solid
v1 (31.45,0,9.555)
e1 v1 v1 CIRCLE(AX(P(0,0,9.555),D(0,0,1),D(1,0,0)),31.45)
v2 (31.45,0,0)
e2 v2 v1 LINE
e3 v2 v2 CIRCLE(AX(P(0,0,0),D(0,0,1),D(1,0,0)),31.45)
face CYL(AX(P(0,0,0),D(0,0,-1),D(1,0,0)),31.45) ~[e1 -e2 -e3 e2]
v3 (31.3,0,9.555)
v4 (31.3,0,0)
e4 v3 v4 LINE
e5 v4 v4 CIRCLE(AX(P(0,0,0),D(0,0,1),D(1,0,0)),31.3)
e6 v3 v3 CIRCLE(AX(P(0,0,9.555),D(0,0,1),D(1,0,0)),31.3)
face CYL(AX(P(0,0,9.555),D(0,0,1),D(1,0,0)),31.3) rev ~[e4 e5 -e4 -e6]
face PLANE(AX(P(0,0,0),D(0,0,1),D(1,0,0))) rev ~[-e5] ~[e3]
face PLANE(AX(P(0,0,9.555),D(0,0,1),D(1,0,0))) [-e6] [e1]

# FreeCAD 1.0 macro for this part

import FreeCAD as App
import Part
import Sketcher
Q = App.Units.Quantity

doc = App.newDocument("Part")
body = doc.addObject("PartDesign::Body", "Body")

sketch1 = body.newObject("Sketcher::SketchObject", "Sketch")
sketch1.AttachmentSupport = (doc.getObject("XY_Plane"), [""])
sketch1.MapMode = "FlatFace"
sketch1.addGeometry(Part.Circle(App.Vector(0, 0, 0), App.Vector(0, 0, 1), 31), False)
sketch1.addConstraint(Sketcher.Constraint("Coincident", 0, 3, -1, 1))
sketch1.addConstraint(Sketcher.Constraint("Diameter", 0, Q("62.9 mm")))
pad1 = body.newObject("PartDesign::Pad", "Pad")
pad1.Profile = sketch1
pad1.Length = 9.555

sketch2 = body.newObject("Sketcher::SketchObject", "Sketch001")
sketch2.AttachmentSupport = (doc.getObject("XY_Plane"), [""])
sketch2.MapMode = "FlatFace"
sketch2.AttachmentOffset = App.Placement(App.Vector(0, 0, 9.555), App.Rotation())
sketch2.addGeometry(Part.Circle(App.Vector(0, 0, 0), App.Vector(0, 0, 1), 31), False)
sketch2.addConstraint(Sketcher.Constraint("Coincident", 0, 3, -1, 1))
sketch2.addConstraint(Sketcher.Constraint("Diameter", 0, Q("62.6 mm")))
pocket1 = body.newObject("PartDesign::Pocket", "Pocket")
pocket1.Profile = sketch2
pocket1.Type = "ThroughAll"

doc.recompute()
